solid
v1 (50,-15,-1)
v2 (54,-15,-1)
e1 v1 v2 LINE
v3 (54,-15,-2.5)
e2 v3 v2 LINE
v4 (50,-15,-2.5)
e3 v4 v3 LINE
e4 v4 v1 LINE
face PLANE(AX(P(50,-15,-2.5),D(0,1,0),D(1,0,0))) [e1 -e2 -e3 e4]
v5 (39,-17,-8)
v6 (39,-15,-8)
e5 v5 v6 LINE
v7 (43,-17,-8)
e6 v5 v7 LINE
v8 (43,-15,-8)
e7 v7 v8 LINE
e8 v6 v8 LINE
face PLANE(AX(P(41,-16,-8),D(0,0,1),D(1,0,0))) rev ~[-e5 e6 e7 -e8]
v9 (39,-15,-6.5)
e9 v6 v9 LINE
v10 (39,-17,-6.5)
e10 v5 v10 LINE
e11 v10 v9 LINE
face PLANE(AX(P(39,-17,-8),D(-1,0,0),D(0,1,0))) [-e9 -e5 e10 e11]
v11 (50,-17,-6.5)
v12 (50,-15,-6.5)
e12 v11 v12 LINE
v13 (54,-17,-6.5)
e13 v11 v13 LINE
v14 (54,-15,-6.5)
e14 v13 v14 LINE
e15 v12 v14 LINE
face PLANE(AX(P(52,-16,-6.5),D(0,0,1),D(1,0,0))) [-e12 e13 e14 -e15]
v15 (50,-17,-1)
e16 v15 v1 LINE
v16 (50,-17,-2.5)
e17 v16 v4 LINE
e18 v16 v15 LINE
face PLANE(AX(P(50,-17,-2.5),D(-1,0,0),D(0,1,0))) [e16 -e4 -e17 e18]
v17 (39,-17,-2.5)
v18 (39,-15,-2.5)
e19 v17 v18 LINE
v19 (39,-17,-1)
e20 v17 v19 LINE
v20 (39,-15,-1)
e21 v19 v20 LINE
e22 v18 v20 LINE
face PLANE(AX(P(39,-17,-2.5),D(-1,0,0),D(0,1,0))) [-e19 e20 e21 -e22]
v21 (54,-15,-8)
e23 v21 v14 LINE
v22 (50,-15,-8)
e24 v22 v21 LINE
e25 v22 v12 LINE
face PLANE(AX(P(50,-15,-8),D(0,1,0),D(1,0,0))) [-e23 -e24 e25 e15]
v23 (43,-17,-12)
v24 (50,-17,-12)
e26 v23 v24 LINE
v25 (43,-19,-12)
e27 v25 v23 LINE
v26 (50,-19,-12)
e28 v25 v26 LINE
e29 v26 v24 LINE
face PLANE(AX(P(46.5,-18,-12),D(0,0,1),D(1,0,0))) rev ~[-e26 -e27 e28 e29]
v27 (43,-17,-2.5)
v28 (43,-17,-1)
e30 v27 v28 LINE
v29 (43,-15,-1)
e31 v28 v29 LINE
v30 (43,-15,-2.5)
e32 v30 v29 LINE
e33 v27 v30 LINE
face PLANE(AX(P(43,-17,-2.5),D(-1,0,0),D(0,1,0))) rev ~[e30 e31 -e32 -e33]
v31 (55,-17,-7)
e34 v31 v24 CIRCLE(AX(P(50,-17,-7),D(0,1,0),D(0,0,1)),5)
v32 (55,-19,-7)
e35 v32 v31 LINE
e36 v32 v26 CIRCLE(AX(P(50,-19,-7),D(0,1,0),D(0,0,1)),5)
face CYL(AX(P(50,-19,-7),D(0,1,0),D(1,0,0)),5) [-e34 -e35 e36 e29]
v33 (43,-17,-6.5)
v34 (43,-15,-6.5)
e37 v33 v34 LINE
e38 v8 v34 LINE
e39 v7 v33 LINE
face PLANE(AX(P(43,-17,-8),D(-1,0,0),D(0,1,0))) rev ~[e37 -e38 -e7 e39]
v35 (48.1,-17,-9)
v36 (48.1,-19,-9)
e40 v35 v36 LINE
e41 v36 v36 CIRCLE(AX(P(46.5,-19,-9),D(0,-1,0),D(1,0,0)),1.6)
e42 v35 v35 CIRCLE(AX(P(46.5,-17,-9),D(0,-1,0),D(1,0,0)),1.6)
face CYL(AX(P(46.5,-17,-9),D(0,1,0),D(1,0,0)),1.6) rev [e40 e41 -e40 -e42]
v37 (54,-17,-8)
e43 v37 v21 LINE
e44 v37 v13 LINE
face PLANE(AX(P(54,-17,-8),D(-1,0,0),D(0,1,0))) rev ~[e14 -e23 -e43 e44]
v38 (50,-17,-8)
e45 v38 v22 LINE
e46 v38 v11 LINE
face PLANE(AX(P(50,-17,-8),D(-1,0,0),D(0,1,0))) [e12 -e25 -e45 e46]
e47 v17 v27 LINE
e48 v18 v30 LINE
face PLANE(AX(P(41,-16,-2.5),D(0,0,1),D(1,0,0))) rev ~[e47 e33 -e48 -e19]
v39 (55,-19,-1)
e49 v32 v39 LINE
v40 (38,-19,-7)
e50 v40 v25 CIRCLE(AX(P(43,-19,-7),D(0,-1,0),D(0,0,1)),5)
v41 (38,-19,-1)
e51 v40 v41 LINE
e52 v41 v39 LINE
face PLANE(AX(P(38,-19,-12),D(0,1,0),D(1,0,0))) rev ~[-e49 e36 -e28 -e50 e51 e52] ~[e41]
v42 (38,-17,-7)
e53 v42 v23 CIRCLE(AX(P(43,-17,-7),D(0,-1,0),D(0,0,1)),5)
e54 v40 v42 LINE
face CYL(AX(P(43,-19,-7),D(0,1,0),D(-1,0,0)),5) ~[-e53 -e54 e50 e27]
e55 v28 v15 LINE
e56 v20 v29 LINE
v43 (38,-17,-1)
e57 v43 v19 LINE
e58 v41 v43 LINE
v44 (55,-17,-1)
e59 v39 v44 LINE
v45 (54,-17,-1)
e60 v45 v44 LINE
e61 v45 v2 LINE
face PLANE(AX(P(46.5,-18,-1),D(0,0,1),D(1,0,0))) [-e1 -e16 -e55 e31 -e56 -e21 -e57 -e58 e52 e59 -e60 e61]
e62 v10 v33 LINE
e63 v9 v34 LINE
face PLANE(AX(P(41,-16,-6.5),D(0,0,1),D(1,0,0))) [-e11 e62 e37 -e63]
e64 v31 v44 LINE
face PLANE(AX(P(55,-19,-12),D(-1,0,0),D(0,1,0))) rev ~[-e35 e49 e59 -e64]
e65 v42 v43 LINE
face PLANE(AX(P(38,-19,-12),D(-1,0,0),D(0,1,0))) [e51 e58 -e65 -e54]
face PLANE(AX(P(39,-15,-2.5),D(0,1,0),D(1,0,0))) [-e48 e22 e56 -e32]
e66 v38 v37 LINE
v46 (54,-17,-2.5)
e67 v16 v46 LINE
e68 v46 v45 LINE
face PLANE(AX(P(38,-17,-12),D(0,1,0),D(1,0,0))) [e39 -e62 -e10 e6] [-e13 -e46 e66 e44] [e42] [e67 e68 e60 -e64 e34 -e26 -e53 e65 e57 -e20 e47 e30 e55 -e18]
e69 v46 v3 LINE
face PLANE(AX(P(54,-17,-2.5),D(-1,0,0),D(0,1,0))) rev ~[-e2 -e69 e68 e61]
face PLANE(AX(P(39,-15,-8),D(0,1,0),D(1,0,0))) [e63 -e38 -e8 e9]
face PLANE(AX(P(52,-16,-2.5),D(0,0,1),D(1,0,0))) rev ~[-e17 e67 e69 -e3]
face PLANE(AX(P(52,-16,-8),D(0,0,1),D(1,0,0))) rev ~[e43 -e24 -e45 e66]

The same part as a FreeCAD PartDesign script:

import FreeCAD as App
import Part
import Sketcher

V = App.Vector


def edges_at(feature, points):
    """Names of the edges that pass closest to the given points."""
    edges = feature.Shape.Edges
    near = lambda p: min(range(len(edges)), key=lambda i: edges[i].distToShape(Part.Vertex(*p))[0])
    return sorted({f"Edge{near(p) + 1}" for p in points})

doc = App.newDocument("Part")
body = doc.addObject("PartDesign::Body", "Body")

# Sketch on XZ plane
sketch1 = body.newObject("Sketcher::SketchObject", "Sketch")
sketch1.AttachmentSupport = (doc.getObject("XZ_Plane"), [""])
sketch1.MapMode = "FlatFace"
sketch1.AttachmentOffset = App.Placement(V(0, 0, 17), App.Rotation())
sketch1.addGeometry(Part.Circle(V(46.5, -9, 0), V(0, 0, 1), 1.6), False)
sketch1.addConstraint(Sketcher.Constraint("Diameter", 0, 3.2))
sketch1.addConstraint(Sketcher.Constraint("DistanceY", 0, 3, -1, 1, 9.0))
sketch1.addConstraint(Sketcher.Constraint("DistanceX", -1, 1, 0, 3, 46.5))
pad1 = body.newObject("PartDesign::Pad", "Pad")
pad1.Profile = sketch1
pad1.Length = 2
body2 = doc.addObject("PartDesign::Body", "Body001")

# Sketch on XY plane
sketch2 = body2.newObject("Sketcher::SketchObject", "Sketch001")
sketch2.AttachmentSupport = (doc.getObject("XY_Plane001"), [""])
sketch2.MapMode = "FlatFace"
sketch2.AttachmentOffset = App.Placement(V(0, 0, -12), App.Rotation())
sketch2.addGeometry(Part.LineSegment(V(38, -17, 0), V(38, -19, 0)), False)
sketch2.addGeometry(Part.LineSegment(V(38, -19, 0), V(55, -19, 0)), False)
sketch2.addGeometry(Part.LineSegment(V(55, -19, 0), V(55, -17, 0)), False)
sketch2.addGeometry(Part.LineSegment(V(55, -17, 0), V(38, -17, 0)), False)
sketch2.addConstraint(Sketcher.Constraint("Coincident", 0, 2, 1, 1))
sketch2.addConstraint(Sketcher.Constraint("Coincident", 1, 2, 2, 1))
sketch2.addConstraint(Sketcher.Constraint("Coincident", 2, 2, 3, 1))
sketch2.addConstraint(Sketcher.Constraint("Coincident", 3, 2, 0, 1))
sketch2.addConstraint(Sketcher.Constraint("Vertical", 0))
sketch2.addConstraint(Sketcher.Constraint("Horizontal", 1))
sketch2.addConstraint(Sketcher.Constraint("Vertical", 2))
sketch2.addConstraint(Sketcher.Constraint("Horizontal", 3))
sketch2.addConstraint(Sketcher.Constraint("DistanceX", 1, 1, 1, 2, 17.0))
sketch2.addConstraint(Sketcher.Constraint("DistanceY", 0, 2, 0, 1, 2.0))
sketch2.addConstraint(Sketcher.Constraint("DistanceX", -1, 1, 0, 2, 38.0))
sketch2.addConstraint(Sketcher.Constraint("DistanceY", 0, 2, -1, 1, 19.0))
pad2 = body2.newObject("PartDesign::Pad", "Pad001")
pad2.Profile = sketch2
pad2.Length = 11
doc.recompute()

fillet = body2.newObject("PartDesign::Fillet", "Fillet")
fillet.Base = (pad2, edges_at(pad2, [(38, -18, -12), (55, -18, -12)]))
fillet.Radius = 5
doc.recompute()

boolean = body2.newObject("PartDesign::Boolean", "Boolean")
boolean.Type = "Cut"
boolean.addObjects([body])
body3 = doc.addObject("PartDesign::Body", "Body002")

# Sketch on XY plane
sketch3 = body3.newObject("Sketcher::SketchObject", "Sketch002")
sketch3.AttachmentSupport = (doc.getObject("XY_Plane002"), [""])
sketch3.MapMode = "FlatFace"
sketch3.AttachmentOffset = App.Placement(V(0, 0, -2.5), App.Rotation())
sketch3.addGeometry(Part.LineSegment(V(39, -15, 0), V(39, -17, 0)), False)
sketch3.addGeometry(Part.LineSegment(V(39, -17, 0), V(43, -17, 0)), False)
sketch3.addGeometry(Part.LineSegment(V(43, -17, 0), V(43, -15, 0)), False)
sketch3.addGeometry(Part.LineSegment(V(43, -15, 0), V(39, -15, 0)), False)
sketch3.addConstraint(Sketcher.Constraint("Coincident", 0, 2, 1, 1))
sketch3.addConstraint(Sketcher.Constraint("Coincident", 1, 2, 2, 1))
sketch3.addConstraint(Sketcher.Constraint("Coincident", 2, 2, 3, 1))
sketch3.addConstraint(Sketcher.Constraint("Coincident", 3, 2, 0, 1))
sketch3.addConstraint(Sketcher.Constraint("Vertical", 0))
sketch3.addConstraint(Sketcher.Constraint("Horizontal", 1))
sketch3.addConstraint(Sketcher.Constraint("Vertical", 2))
sketch3.addConstraint(Sketcher.Constraint("Horizontal", 3))
sketch3.addConstraint(Sketcher.Constraint("DistanceX", 1, 1, 1, 2, 4.0))
sketch3.addConstraint(Sketcher.Constraint("DistanceY", 0, 2, 0, 1, 2.0))
sketch3.addConstraint(Sketcher.Constraint("DistanceX", -1, 1, 0, 2, 39.0))
sketch3.addConstraint(Sketcher.Constraint("DistanceY", 0, 2, -1, 1, 17.0))
pad3 = body3.newObject("PartDesign::Pad", "Pad002")
pad3.Profile = sketch3
pad3.Length = 1.5
body4 = doc.addObject("PartDesign::Body", "Body003")

# Sketch on XY plane
sketch4 = body4.newObject("Sketcher::SketchObject", "Sketch003")
sketch4.AttachmentSupport = (doc.getObject("XY_Plane003"), [""])
sketch4.MapMode = "FlatFace"
sketch4.AttachmentOffset = App.Placement(V(0, 0, -8), App.Rotation())
sketch4.addGeometry(Part.LineSegment(V(50, -15, 0), V(50, -17, 0)), False)
sketch4.addGeometry(Part.LineSegment(V(50, -17, 0), V(54, -17, 0)), False)
sketch4.addGeometry(Part.LineSegment(V(54, -17, 0), V(54, -15, 0)), False)
sketch4.addGeometry(Part.LineSegment(V(54, -15, 0), V(50, -15, 0)), False)
sketch4.addConstraint(Sketcher.Constraint("Coincident", 0, 2, 1, 1))
sketch4.addConstraint(Sketcher.Constraint("Coincident", 1, 2, 2, 1))
sketch4.addConstraint(Sketcher.Constraint("Coincident", 2, 2, 3, 1))
sketch4.addConstraint(Sketcher.Constraint("Coincident", 3, 2, 0, 1))
sketch4.addConstraint(Sketcher.Constraint("Vertical", 0))
sketch4.addConstraint(Sketcher.Constraint("Horizontal", 1))
sketch4.addConstraint(Sketcher.Constraint("Vertical", 2))
sketch4.addConstraint(Sketcher.Constraint("Horizontal", 3))
sketch4.addConstraint(Sketcher.Constraint("DistanceX", 1, 1, 1, 2, 4.0))
sketch4.addConstraint(Sketcher.Constraint("DistanceY", 0, 2, 0, 1, 2.0))
sketch4.addConstraint(Sketcher.Constraint("DistanceX", -1, 1, 0, 2, 50.0))
sketch4.addConstraint(Sketcher.Constraint("DistanceY", 0, 2, -1, 1, 17.0))
pad4 = body4.newObject("PartDesign::Pad", "Pad003")
pad4.Profile = sketch4
pad4.Length = 1.5
body5 = doc.addObject("PartDesign::Body", "Body004")

# Sketch on XY plane
sketch5 = body5.newObject("Sketcher::SketchObject", "Sketch004")
sketch5.AttachmentSupport = (doc.getObject("XY_Plane004"), [""])
sketch5.MapMode = "FlatFace"
sketch5.AttachmentOffset = App.Placement(V(0, 0, -8), App.Rotation())
sketch5.addGeometry(Part.LineSegment(V(39, -15, 0), V(39, -17, 0)), False)
sketch5.addGeometry(Part.LineSegment(V(39, -17, 0), V(43, -17, 0)), False)
sketch5.addGeometry(Part.LineSegment(V(43, -17, 0), V(43, -15, 0)), False)
sketch5.addGeometry(Part.LineSegment(V(43, -15, 0), V(39, -15, 0)), False)
sketch5.addConstraint(Sketcher.Constraint("Coincident", 0, 2, 1, 1))
sketch5.addConstraint(Sketcher.Constraint("Coincident", 1, 2, 2, 1))
sketch5.addConstraint(Sketcher.Constraint("Coincident", 2, 2, 3, 1))
sketch5.addConstraint(Sketcher.Constraint("Coincident", 3, 2, 0, 1))
sketch5.addConstraint(Sketcher.Constraint("Vertical", 0))
sketch5.addConstraint(Sketcher.Constraint("Horizontal", 1))
sketch5.addConstraint(Sketcher.Constraint("Vertical", 2))
sketch5.addConstraint(Sketcher.Constraint("Horizontal", 3))
sketch5.addConstraint(Sketcher.Constraint("DistanceX", 1, 1, 1, 2, 4.0))
sketch5.addConstraint(Sketcher.Constraint("DistanceY", 0, 2, 0, 1, 2.0))
sketch5.addConstraint(Sketcher.Constraint("DistanceX", -1, 1, 0, 2, 39.0))
sketch5.addConstraint(Sketcher.Constraint("DistanceY", 0, 2, -1, 1, 17.0))
pad5 = body5.newObject("PartDesign::Pad", "Pad004")
pad5.Profile = sketch5
pad5.Length = 1.5
body6 = doc.addObject("PartDesign::Body", "Body005")

# Sketch on XY plane
sketch6 = body6.newObject("Sketcher::SketchObject", "Sketch005")
sketch6.AttachmentSupport = (doc.getObject("XY_Plane005"), [""])
sketch6.MapMode = "FlatFace"
sketch6.AttachmentOffset = App.Placement(V(0, 0, -2.5), App.Rotation())
sketch6.addGeometry(Part.LineSegment(V(50, -15, 0), V(50, -17, 0)), False)
sketch6.addGeometry(Part.LineSegment(V(50, -17, 0), V(54, -17, 0)), False)
sketch6.addGeometry(Part.LineSegment(V(54, -17, 0), V(54, -15, 0)), False)
sketch6.addGeometry(Part.LineSegment(V(54, -15, 0), V(50, -15, 0)), False)
sketch6.addConstraint(Sketcher.Constraint("Coincident", 0, 2, 1, 1))
sketch6.addConstraint(Sketcher.Constraint("Coincident", 1, 2, 2, 1))
sketch6.addConstraint(Sketcher.Constraint("Coincident", 2, 2, 3, 1))
sketch6.addConstraint(Sketcher.Constraint("Coincident", 3, 2, 0, 1))
sketch6.addConstraint(Sketcher.Constraint("Vertical", 0))
sketch6.addConstraint(Sketcher.Constraint("Horizontal", 1))
sketch6.addConstraint(Sketcher.Constraint("Vertical", 2))
sketch6.addConstraint(Sketcher.Constraint("Horizontal", 3))
sketch6.addConstraint(Sketcher.Constraint("DistanceX", 1, 1, 1, 2, 4.0))
sketch6.addConstraint(Sketcher.Constraint("DistanceY", 0, 2, 0, 1, 2.0))
sketch6.addConstraint(Sketcher.Constraint("DistanceX", -1, 1, 0, 2, 50.0))
sketch6.addConstraint(Sketcher.Constraint("DistanceY", 0, 2, -1, 1, 17.0))
pad6 = body6.newObject("PartDesign::Pad", "Pad005")
pad6.Profile = sketch6
pad6.Length = 1.5
doc.recompute()

boolean2 = body6.newObject("PartDesign::Boolean", "Boolean001")
boolean2.Type = "Fuse"
boolean2.addObjects([body2])
doc.recompute()

boolean3 = body6.newObject("PartDesign::Boolean", "Boolean002")
boolean3.Type = "Fuse"
boolean3.addObjects([body3])
doc.recompute()

boolean4 = body6.newObject("PartDesign::Boolean", "Boolean003")
boolean4.Type = "Fuse"
boolean4.addObjects([body4])
doc.recompute()

boolean5 = body6.newObject("PartDesign::Boolean", "Boolean004")
boolean5.Type = "Fuse"
boolean5.addObjects([body5])

doc.recompute()
